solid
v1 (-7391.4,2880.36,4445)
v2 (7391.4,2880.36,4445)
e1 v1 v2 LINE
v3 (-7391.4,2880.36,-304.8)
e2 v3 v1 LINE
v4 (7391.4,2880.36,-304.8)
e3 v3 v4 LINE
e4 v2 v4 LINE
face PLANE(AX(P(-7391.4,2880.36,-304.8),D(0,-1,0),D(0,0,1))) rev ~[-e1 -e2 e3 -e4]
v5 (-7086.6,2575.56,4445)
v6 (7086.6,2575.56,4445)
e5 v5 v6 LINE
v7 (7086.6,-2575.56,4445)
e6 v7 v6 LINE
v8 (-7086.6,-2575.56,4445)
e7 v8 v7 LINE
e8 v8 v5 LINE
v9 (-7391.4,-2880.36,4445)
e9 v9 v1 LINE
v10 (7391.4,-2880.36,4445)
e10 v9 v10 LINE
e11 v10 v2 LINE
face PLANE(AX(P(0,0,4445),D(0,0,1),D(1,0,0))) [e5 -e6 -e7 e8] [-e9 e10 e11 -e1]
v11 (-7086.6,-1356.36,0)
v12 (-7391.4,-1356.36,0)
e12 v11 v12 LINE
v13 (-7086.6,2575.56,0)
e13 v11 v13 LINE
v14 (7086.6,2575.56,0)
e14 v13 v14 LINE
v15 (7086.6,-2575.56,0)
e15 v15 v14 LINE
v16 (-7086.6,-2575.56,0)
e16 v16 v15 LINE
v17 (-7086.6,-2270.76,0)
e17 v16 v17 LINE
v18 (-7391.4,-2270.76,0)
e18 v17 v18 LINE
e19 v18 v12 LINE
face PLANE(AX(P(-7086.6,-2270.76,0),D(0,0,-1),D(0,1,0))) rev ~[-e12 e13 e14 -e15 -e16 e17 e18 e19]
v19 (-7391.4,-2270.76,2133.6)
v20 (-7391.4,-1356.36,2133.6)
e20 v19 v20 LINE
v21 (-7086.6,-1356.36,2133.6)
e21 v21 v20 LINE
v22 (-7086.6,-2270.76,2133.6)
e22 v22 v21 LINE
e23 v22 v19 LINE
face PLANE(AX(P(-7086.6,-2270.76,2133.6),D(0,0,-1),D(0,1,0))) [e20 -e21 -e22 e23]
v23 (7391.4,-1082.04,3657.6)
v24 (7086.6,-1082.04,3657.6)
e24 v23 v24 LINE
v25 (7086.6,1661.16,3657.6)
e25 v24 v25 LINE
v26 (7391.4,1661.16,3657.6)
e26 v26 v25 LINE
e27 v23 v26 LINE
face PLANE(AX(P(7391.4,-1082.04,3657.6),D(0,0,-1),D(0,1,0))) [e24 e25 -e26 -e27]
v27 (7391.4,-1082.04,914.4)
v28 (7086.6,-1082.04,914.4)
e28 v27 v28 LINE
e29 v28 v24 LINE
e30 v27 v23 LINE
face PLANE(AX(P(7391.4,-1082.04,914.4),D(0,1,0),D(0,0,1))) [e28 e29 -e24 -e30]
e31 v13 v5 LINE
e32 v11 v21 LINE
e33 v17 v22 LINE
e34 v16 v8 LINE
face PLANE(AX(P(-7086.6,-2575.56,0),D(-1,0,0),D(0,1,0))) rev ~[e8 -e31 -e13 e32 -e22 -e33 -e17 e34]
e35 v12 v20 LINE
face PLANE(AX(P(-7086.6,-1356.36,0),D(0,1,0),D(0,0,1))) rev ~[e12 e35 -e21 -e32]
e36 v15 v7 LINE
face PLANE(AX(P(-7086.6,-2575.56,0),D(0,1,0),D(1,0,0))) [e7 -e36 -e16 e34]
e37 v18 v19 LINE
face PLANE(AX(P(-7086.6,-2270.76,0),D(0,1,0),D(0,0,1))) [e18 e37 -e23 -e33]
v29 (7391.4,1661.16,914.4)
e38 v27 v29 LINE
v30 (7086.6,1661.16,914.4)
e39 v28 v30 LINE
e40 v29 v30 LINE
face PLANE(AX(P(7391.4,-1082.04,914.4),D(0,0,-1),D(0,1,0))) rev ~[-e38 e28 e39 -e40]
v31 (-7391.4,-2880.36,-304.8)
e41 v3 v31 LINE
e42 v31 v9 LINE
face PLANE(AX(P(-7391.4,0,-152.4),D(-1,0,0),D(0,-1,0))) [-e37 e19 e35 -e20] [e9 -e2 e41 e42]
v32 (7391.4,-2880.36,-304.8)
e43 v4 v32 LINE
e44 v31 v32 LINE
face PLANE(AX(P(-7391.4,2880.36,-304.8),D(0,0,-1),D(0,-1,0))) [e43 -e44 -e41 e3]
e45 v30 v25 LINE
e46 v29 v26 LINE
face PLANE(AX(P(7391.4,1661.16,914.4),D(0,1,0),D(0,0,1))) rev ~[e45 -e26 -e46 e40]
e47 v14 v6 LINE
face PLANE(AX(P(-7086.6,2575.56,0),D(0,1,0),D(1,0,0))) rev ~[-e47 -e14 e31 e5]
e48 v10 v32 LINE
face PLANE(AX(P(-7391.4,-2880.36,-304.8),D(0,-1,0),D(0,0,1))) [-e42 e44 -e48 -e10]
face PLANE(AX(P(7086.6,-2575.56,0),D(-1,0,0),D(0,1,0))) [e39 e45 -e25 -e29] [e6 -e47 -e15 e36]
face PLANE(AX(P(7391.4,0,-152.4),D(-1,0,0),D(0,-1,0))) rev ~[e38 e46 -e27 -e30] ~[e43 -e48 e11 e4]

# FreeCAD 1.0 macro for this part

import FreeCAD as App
import Part
import Sketcher
Q = App.Units.Quantity


def add_polygon(sketch, points):
    """Adds a closed chain of lines whose ends are joined by coincident constraints."""
    first, n = sketch.GeometryCount, len(points)
    for a, b in zip(points, points[1:] + points[:1]):
        sketch.addGeometry(Part.LineSegment(App.Vector(*a, 0), App.Vector(*b, 0)), False)
    for i in range(n):
        sketch.addConstraint(Sketcher.Constraint("Coincident", first + i, 2, first + (i + 1) % n, 1))

doc = App.newDocument("Part")
params = doc.addObject("Spreadsheet::Sheet", "Params")
for row, (alias, value) in enumerate([
    ("sketch1_width", "582 in"),
    ("sketch1_width2", "558 in"),
    ("sketch1_height", "226.8 in"),
    ("sketch1_height2", "202.8 in"),
    ("pad1_length", "175 in"),
    ("sketch2_height", "12 in"),
    ("sketch2_width", "226.8 in"),
    ("pad2_length", "582 in"),
    ("sketch3_width", "108 in"),
    ("pocket1_length", "12 in"),
    ("sketch4_width", "36 in"),
    ("sketch4_height", "84 in"),
], start=1):
    params.set(f"A{row}", alias)
    params.set(f"B{row}", "=" + value)
    params.setAlias(f"B{row}", alias)

body = doc.addObject("PartDesign::Body", "Body")

# Sketch on XY plane
sketch1 = doc.addObject("Sketcher::SketchObject", "Sketch")
body.addObject(sketch1)
sketch1.AttachmentSupport = (doc.XY_Plane, [""])
sketch1.MapMode = "FlatFace"
add_polygon(sketch1, [(-7391, 2880), (-7391, -2880), (7391, -2880), (7391, 2880)])  # lines 0-3
add_polygon(sketch1, [(7087, -2576), (-7087, -2576), (-7087, 2576), (7087, 2576)])  # lines 4-7
sketch1.addConstraint([
    Sketcher.Constraint("Vertical", 0),
    Sketcher.Constraint("Horizontal", 1),
    Sketcher.Constraint("Vertical", 2),
    Sketcher.Constraint("Horizontal", 3),
    Sketcher.Constraint("Horizontal", 4),
    Sketcher.Constraint("Vertical", 5),
    Sketcher.Constraint("Horizontal", 6),
    Sketcher.Constraint("Vertical", 7),
    Sketcher.Constraint("Symmetric", 0, 2, 2, 2, -1, 1),
    Sketcher.Constraint("Symmetric", 4, 2, 6, 2, -1, 1),
    Sketcher.Constraint("DistanceX", 1, 1, 1, 2, Q("582 in")),
    Sketcher.Constraint("DistanceX", 4, 2, 4, 1, Q("558 in")),
    Sketcher.Constraint("DistanceY", 0, 2, 0, 1, Q("226.8 in")),
    Sketcher.Constraint("DistanceY", 5, 1, 5, 2, Q("202.8 in")),
])
sketch1.setExpression("Constraints[18]", "Params.sketch1_width")
sketch1.setExpression("Constraints[19]", "Params.sketch1_width2")
sketch1.setExpression("Constraints[20]", "Params.sketch1_height")
sketch1.setExpression("Constraints[21]", "Params.sketch1_height2")
pad1 = doc.addObject("PartDesign::Pad", "Pad")
body.addObject(pad1)
pad1.Profile = sketch1
pad1.setExpression("Length", "Params.pad1_length")

# Sketch on YZ plane
sketch2 = doc.addObject("Sketcher::SketchObject", "Sketch001")
body.addObject(sketch2)
sketch2.AttachmentSupport = (doc.YZ_Plane, [""])
sketch2.MapMode = "FlatFace"
sketch2.AttachmentOffset = App.Placement(App.Vector(0, 0, -291 * 25.4), App.Rotation())
add_polygon(sketch2, [(2880, 0), (2880, -305), (-2880, -305), (-2880, 0)])  # lines 0-3
sketch2.addConstraint([
    Sketcher.Constraint("Vertical", 0),
    Sketcher.Constraint("Horizontal", 1),
    Sketcher.Constraint("Vertical", 2),
    Sketcher.Constraint("Horizontal", 3),
    Sketcher.Constraint("Symmetric", 2, 2, 3, 2, -1, 1),
    Sketcher.Constraint("DistanceY", 0, 2, 0, 1, Q("12 in")),
    Sketcher.Constraint("DistanceX", 1, 2, 1, 1, Q("226.8 in")),
])
sketch2.setExpression("Constraints[9]", "Params.sketch2_height")
sketch2.setExpression("Constraints[10]", "Params.sketch2_width")
pad2 = doc.addObject("PartDesign::Pad", "Pad001")
body.addObject(pad2)
pad2.Profile = sketch2
pad2.setExpression("Length", "Params.pad2_length")

# Sketch on YZ plane
sketch3 = doc.addObject("Sketcher::SketchObject", "Sketch002")
body.addObject(sketch3)
sketch3.AttachmentSupport = (doc.YZ_Plane, [""])
sketch3.MapMode = "FlatFace"
sketch3.AttachmentOffset = App.Placement(App.Vector(0, 0, 291 * 25.4), App.Rotation())
add_polygon(sketch3, [(-1082, 3658), (-1082, 914), (1661, 914), (1661, 3658)])  # lines 0-3
sketch3.addConstraint([
    Sketcher.Constraint("Vertical", 0),
    Sketcher.Constraint("Horizontal", 1),
    Sketcher.Constraint("Vertical", 2),
    Sketcher.Constraint("Horizontal", 3),
    Sketcher.Constraint("Equal", 3, 0),
    Sketcher.Constraint("DistanceX", 1, 1, 1, 2, Q("108 in")),
    Sketcher.Constraint("DistanceY", -1, 1, 0, 2, Q("36 in")),
    Sketcher.Constraint("DistanceX", 0, 2, -1, 1, Q("42.6 in")),
])
sketch3.setExpression("Constraints[9]", "Params.sketch3_width")
pocket1 = doc.addObject("PartDesign::Pocket", "Pocket")
body.addObject(pocket1)
pocket1.Profile = sketch3
pocket1.setExpression("Length", "Params.pocket1_length")

# Sketch on YZ plane
sketch4 = doc.addObject("Sketcher::SketchObject", "Sketch003")
body.addObject(sketch4)
sketch4.AttachmentSupport = (doc.YZ_Plane, [""])
sketch4.MapMode = "FlatFace"
sketch4.AttachmentOffset = App.Placement(App.Vector(0, 0, -279 * 25.4), App.Rotation())
add_polygon(sketch4, [(-2271, 2134), (-2271, 0), (-1356, 0), (-1356, 2134)])  # lines 0-3
sketch4.addConstraint([
    Sketcher.Constraint("Vertical", 0),
    Sketcher.Constraint("Horizontal", 1),
    Sketcher.Constraint("Vertical", 2),
    Sketcher.Constraint("Horizontal", 3),
    Sketcher.Constraint("PointOnObject", 0, 2, -1),
    Sketcher.Constraint("DistanceX", 1, 1, 1, 2, Q("36 in")),
    Sketcher.Constraint("DistanceY", 0, 2, 0, 1, Q("84 in")),
    Sketcher.Constraint("DistanceX", 0, 2, -1, 1, Q("89.4 in")),
])
sketch4.setExpression("Constraints[9]", "Params.sketch4_width")
sketch4.setExpression("Constraints[10]", "Params.sketch4_height")
pocket2 = doc.addObject("PartDesign::Pocket", "Pocket001")
body.addObject(pocket2)
pocket2.Profile = sketch4
pocket2.Type = "ThroughAll"

doc.recompute()
